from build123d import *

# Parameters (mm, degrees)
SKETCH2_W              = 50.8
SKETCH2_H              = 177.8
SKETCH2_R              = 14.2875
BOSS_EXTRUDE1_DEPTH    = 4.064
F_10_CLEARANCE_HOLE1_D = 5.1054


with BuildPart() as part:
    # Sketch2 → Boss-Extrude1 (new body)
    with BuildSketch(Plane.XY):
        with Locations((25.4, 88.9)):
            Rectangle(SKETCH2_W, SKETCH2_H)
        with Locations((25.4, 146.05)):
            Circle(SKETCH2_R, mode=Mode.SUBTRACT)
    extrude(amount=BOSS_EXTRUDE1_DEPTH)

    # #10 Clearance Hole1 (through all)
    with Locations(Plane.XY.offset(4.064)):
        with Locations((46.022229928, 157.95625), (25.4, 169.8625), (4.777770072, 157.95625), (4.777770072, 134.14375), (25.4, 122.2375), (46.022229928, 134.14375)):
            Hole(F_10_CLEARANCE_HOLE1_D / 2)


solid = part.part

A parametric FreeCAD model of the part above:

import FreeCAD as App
import Part
import Sketcher
from FreeCAD import Vector
Q = App.Units.Quantity


def add_polygon(sketch, points):
    """Adds a closed chain of lines whose ends are joined by coincident constraints."""
    first, n = sketch.GeometryCount, len(points)
    for a, b in zip(points, points[1:] + points[:1]):
        sketch.addGeometry(Part.LineSegment(App.Vector(*a, 0), App.Vector(*b, 0)), False)
    for i in range(n):
        sketch.addConstraint(Sketcher.Constraint("Coincident", first + i, 2, first + (i + 1) % n, 1))

doc = App.newDocument("Part")
body = doc.addObject("PartDesign::Body", "Body")

sketch1 = body.newObject("Sketcher::SketchObject", "Sketch")
sketch1.AttachmentSupport = (doc.getObject("XY_Plane"), [""])
sketch1.MapMode = "FlatFace"
add_polygon(sketch1, [(0, 178), (0, 0), (51, 0), (51, 178)])
sketch1.addGeometry(Part.Circle(Vector(25, 146, 0), Vector(0, 0, 1), 14), False)
sketch1.addConstraint([
    Sketcher.Constraint("Vertical", 0),
    Sketcher.Constraint("Horizontal", 1),
    Sketcher.Constraint("Vertical", 2),
    Sketcher.Constraint("Horizontal", 3),
    Sketcher.Constraint("Coincident", 0, 2, -1, 1),
    Sketcher.Constraint("DistanceX", 1, 1, 1, 2, Q("2 in")),
    Sketcher.Constraint("DistanceY", 0, 2, 0, 1, Q("7 in")),
    Sketcher.Constraint("Diameter", 4, Q("1.125 in")),
    Sketcher.Constraint("DistanceX", -1, 1, 4, 3, Q("1 in")),
    Sketcher.Constraint("DistanceY", -1, 1, 4, 3, Q("5.75 in")),
])
pad1 = body.newObject("PartDesign::Pad", "Pad")
pad1.Profile = sketch1
pad1.Length = Q("0.16 in")

sketch2 = body.newObject("Sketcher::SketchObject", "Sketch001")
sketch2.AttachmentSupport = (doc.getObject("XY_Plane"), [""])
sketch2.MapMode = "FlatFace"
sketch2.AttachmentOffset = App.Placement(Vector(0, 0, 0.16 * 25.4), App.Rotation())
sketch2.addGeometry([
    Part.Circle(Vector(46, 158, 0), Vector(0, 0, 1), 2.6),
    Part.Circle(Vector(25.4, 169.9, 0), Vector(0, 0, 1), 2.6),
    Part.Circle(Vector(4.8, 158, 0), Vector(0, 0, 1), 2.6),
    Part.Circle(Vector(4.8, 134.1, 0), Vector(0, 0, 1), 2.6),
    Part.Circle(Vector(25.4, 122.2, 0), Vector(0, 0, 1), 2.6),
    Part.Circle(Vector(46, 134.1, 0), Vector(0, 0, 1), 2.6),
], False)
sketch2.addConstraint([
    Sketcher.Constraint("Equal", 0, 1),
    Sketcher.Constraint("Equal", 1, 2),
    Sketcher.Constraint("Equal", 2, 3),
    Sketcher.Constraint("Equal", 3, 4),
    Sketcher.Constraint("Equal", 4, 5),
    Sketcher.Constraint("Horizontal", 0, 3, 2, 3),
    Sketcher.Constraint("Horizontal", 3, 3, 5, 3),
    Sketcher.Constraint("Vertical", 2, 3, 3, 3),
    Sketcher.Constraint("Vertical", 1, 3, 4, 3),
    Sketcher.Constraint("Vertical", 0, 3, 5, 3),
    Sketcher.Constraint("Diameter", 0, Q("0.201 in")),
    Sketcher.Constraint("DistanceX", -1, 1, 1, 3, Q("1 in")),
    Sketcher.Constraint("DistanceY", -1, 1, 0, 3, Q("6.21875 in")),
    Sketcher.Constraint("DistanceY", -1, 1, 1, 3, Q("6.6875 in")),
    Sketcher.Constraint("DistanceY", -1, 1, 3, 3, Q("5.28125 in")),
    Sketcher.Constraint("DistanceY", -1, 1, 4, 3, Q("4.8125 in")),
    Sketcher.Constraint("DistanceX", -1, 1, 0, 3, 46.02223),
    Sketcher.Constraint("DistanceX", -1, 1, 2, 3, 4.77777),
])
doc.recompute()
hole = body.newObject("PartDesign::Hole", "Hole")
hole.Profile = sketch2
hole.ThreadType = "None"
hole.Diameter = Q("0.201 in")
hole.DepthType = "ThroughAll"

doc.recompute()
